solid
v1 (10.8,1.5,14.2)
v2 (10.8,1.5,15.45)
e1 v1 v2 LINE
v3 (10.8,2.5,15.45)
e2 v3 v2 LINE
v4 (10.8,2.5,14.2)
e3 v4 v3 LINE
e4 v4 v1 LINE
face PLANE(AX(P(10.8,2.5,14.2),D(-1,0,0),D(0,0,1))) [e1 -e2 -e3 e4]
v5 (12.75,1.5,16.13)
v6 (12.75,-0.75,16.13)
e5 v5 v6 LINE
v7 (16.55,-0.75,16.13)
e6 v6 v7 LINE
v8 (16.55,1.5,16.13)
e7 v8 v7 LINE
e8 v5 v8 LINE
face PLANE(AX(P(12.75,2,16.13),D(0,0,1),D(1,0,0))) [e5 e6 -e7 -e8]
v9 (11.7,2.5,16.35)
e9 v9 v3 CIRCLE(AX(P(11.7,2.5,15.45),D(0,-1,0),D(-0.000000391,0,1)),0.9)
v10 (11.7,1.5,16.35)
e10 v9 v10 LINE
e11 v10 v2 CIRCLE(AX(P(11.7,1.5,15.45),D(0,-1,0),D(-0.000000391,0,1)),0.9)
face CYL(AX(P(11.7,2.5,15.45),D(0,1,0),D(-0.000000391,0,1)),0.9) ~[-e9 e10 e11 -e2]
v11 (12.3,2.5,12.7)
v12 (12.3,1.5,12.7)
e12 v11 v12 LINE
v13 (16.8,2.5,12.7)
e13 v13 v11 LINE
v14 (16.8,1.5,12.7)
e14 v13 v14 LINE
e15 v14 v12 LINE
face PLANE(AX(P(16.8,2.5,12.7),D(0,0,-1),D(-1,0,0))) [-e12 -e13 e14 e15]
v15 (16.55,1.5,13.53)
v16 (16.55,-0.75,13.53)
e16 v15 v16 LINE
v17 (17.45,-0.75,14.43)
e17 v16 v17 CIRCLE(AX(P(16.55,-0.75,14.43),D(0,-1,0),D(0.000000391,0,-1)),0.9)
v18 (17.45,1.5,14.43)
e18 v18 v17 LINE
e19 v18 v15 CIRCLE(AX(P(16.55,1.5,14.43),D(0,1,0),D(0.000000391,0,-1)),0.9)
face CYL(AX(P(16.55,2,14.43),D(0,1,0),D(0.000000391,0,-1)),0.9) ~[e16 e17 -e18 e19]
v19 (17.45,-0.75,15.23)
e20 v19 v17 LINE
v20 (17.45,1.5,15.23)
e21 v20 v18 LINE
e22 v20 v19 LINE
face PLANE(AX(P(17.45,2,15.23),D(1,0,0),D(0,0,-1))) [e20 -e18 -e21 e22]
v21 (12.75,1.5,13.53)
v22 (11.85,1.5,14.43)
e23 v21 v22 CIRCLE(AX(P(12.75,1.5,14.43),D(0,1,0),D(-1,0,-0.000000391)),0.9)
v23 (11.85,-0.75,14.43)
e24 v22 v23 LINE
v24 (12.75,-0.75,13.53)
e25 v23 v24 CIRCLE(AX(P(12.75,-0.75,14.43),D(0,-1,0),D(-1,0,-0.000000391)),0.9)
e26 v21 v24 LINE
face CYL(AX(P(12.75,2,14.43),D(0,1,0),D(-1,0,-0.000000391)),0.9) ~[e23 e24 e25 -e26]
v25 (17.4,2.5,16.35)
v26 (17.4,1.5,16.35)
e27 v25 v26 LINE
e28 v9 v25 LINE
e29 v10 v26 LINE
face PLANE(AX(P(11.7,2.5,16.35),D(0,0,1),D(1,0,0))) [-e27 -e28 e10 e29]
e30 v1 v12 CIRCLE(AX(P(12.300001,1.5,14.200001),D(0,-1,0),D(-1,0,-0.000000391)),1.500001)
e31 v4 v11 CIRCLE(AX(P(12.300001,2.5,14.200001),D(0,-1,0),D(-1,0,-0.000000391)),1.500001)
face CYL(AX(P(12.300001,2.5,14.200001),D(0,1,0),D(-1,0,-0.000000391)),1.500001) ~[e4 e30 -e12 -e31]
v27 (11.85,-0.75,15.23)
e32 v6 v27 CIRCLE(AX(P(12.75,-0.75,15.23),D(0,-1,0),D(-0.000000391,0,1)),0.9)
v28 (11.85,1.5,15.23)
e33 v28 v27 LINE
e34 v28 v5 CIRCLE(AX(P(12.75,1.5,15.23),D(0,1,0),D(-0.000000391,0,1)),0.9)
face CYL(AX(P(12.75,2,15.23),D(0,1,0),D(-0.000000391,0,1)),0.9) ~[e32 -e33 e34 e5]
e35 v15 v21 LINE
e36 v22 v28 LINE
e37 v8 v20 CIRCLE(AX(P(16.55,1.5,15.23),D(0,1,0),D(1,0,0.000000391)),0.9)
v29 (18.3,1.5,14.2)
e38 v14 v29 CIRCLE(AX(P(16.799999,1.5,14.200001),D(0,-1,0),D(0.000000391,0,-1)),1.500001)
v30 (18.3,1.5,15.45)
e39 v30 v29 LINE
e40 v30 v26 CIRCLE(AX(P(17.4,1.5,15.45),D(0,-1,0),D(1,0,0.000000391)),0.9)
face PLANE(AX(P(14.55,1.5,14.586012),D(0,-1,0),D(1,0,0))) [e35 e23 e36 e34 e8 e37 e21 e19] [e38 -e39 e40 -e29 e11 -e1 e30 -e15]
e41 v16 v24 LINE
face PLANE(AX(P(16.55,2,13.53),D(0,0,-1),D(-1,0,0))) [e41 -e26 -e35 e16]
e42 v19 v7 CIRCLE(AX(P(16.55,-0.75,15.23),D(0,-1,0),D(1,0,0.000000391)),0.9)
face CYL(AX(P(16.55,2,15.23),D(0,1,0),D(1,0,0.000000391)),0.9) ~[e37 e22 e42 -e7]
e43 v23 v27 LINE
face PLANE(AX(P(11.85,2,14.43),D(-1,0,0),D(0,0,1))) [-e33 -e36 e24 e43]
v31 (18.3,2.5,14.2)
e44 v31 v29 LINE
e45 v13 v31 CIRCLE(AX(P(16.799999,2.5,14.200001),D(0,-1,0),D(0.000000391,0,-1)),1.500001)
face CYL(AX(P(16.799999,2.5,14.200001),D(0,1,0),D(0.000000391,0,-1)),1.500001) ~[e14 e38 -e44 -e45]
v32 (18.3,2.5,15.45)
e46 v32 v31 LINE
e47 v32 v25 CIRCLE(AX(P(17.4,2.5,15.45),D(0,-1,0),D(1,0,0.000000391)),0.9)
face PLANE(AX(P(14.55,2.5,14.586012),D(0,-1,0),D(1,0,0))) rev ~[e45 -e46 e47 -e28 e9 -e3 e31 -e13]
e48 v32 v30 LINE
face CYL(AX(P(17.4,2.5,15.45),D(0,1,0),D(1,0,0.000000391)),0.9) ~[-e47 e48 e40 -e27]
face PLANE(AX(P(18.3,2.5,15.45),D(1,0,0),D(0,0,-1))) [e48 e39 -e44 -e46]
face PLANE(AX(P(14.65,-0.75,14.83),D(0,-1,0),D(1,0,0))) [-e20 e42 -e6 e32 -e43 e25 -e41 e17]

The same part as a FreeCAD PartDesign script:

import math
import FreeCAD as App
import Part
import Sketcher

V = App.Vector

doc = App.newDocument("Part")
body = doc.addObject("PartDesign::Body", "Body")

sketch1 = body.newObject("Sketcher::SketchObject", "Sketch")
sketch1.AttachmentSupport = (doc.getObject("XZ_Plane"), [""])
sketch1.MapMode = "FlatFace"
sketch1.addGeometry([
    Part.ArcOfCircle(Part.Circle(V(11.7, 15.4, 0), V(0, 0, 1), 0.9), math.radians(90), math.radians(180)),
    Part.LineSegment(V(10.8, 15.4, 0), V(10.8, 14.2, 0)),
    Part.ArcOfCircle(Part.Circle(V(12.3, 14.2, 0), V(0, 0, 1), 1.5), math.radians(-180), math.radians(-90)),
    Part.LineSegment(V(12.3, 12.7, 0), V(16.8, 12.7, 0)),
    Part.ArcOfCircle(Part.Circle(V(16.8, 14.2, 0), V(0, 0, 1), 1.5), math.radians(-90), math.radians(0)),
    Part.LineSegment(V(18.3, 14.2, 0), V(18.3, 15.4, 0)),
    Part.ArcOfCircle(Part.Circle(V(17.4, 15.4, 0), V(0, 0, 1), 0.9), math.radians(0), math.radians(90)),
    Part.LineSegment(V(17.4, 16.4, 0), V(11.7, 16.4, 0)),
], False)
sketch1.addConstraint([
    Sketcher.Constraint("Tangent", 0, 2, 1, 1),
    Sketcher.Constraint("Tangent", 1, 2, 2, 1),
    Sketcher.Constraint("Tangent", 2, 2, 3, 1),
    Sketcher.Constraint("Tangent", 3, 2, 4, 1),
    Sketcher.Constraint("Tangent", 4, 2, 5, 1),
    Sketcher.Constraint("Tangent", 5, 2, 6, 1),
    Sketcher.Constraint("Tangent", 6, 2, 7, 1),
    Sketcher.Constraint("Tangent", 7, 2, 0, 1),
    Sketcher.Constraint("Vertical", 1),
    Sketcher.Constraint("Horizontal", 3),
    Sketcher.Constraint("Vertical", 5),
    Sketcher.Constraint("Horizontal", 7),
    Sketcher.Constraint("Equal", 2, 4),
    Sketcher.Constraint("Equal", 0, 6),
    Sketcher.Constraint("Radius", 0, 0.9),
    Sketcher.Constraint("Radius", 2, 1.500001),
    Sketcher.Constraint("DistanceX", 3, 1, 3, 2, 4.5),
    Sketcher.Constraint("DistanceY", 1, 2, 1, 1, 1.25),
    Sketcher.Constraint("DistanceX", -1, 1, 0, 3, 11.7),
    Sketcher.Constraint("DistanceY", -1, 1, 2, 3, 14.200001),
])
pad1 = body.newObject("PartDesign::Pad", "Pad")
pad1.Profile = sketch1
pad1.Length = 1
body2 = doc.addObject("PartDesign::Body", "Body001")
doc.recompute()

body.Placement = App.Placement(V(0, 2.5, 0), App.Rotation(V(0, 0, 1), 0))
boolean = body2.newObject("PartDesign::Boolean", "Boolean")
boolean.Type = "Fuse"
boolean.addObjects([body])
body3 = doc.addObject("PartDesign::Body", "Body002")

sketch2 = body3.newObject("Sketcher::SketchObject", "Sketch001")
sketch2.AttachmentSupport = (doc.getObject("XZ_Plane002"), [""])
sketch2.MapMode = "FlatFace"
sketch2.addGeometry([
    Part.ArcOfCircle(Part.Circle(V(12.8, 15.2, 0), V(0, 0, 1), 0.9), math.radians(90), math.radians(180)),
    Part.LineSegment(V(11.8, 15.2, 0), V(11.8, 14.4, 0)),
    Part.ArcOfCircle(Part.Circle(V(12.8, 14.4, 0), V(0, 0, 1), 0.9), math.radians(-180), math.radians(-90)),
    Part.LineSegment(V(12.8, 13.5, 0), V(16.6, 13.5, 0)),
    Part.ArcOfCircle(Part.Circle(V(16.5, 14.4, 0), V(0, 0, 1), 0.9), math.radians(-90), math.radians(0)),
    Part.LineSegment(V(17.4, 14.4, 0), V(17.4, 15.2, 0)),
    Part.ArcOfCircle(Part.Circle(V(16.5, 15.2, 0), V(0, 0, 1), 0.9), math.radians(0), math.radians(90)),
    Part.LineSegment(V(16.6, 16.1, 0), V(12.8, 16.1, 0)),
], False)
sketch2.addConstraint([
    Sketcher.Constraint("Tangent", 0, 2, 1, 1),
    Sketcher.Constraint("Tangent", 1, 2, 2, 1),
    Sketcher.Constraint("Tangent", 2, 2, 3, 1),
    Sketcher.Constraint("Tangent", 3, 2, 4, 1),
    Sketcher.Constraint("Tangent", 4, 2, 5, 1),
    Sketcher.Constraint("Tangent", 5, 2, 6, 1),
    Sketcher.Constraint("Tangent", 6, 2, 7, 1),
    Sketcher.Constraint("Tangent", 7, 2, 0, 1),
    Sketcher.Constraint("Vertical", 1),
    Sketcher.Constraint("Horizontal", 3),
    Sketcher.Constraint("Vertical", 5),
    Sketcher.Constraint("Horizontal", 7),
    Sketcher.Constraint("Equal", 0, 2),
    Sketcher.Constraint("Equal", 2, 4),
    Sketcher.Constraint("Equal", 4, 6),
    Sketcher.Constraint("Radius", 0, 0.9),
    Sketcher.Constraint("DistanceX", 3, 1, 3, 2, 3.8),
    Sketcher.Constraint("DistanceY", 1, 2, 1, 1, 0.8),
    Sketcher.Constraint("DistanceX", -1, 1, 0, 3, 12.75),
    Sketcher.Constraint("DistanceY", -1, 1, 0, 3, 15.23),
])
pad2 = body3.newObject("PartDesign::Pad", "Pad001")
pad2.Profile = sketch2
pad2.Length = 2.75
body4 = doc.addObject("PartDesign::Body", "Body003")
doc.recompute()

body3.Placement = App.Placement(V(0, 2, 0), App.Rotation(V(0, 0, 1), 0))
boolean2 = body4.newObject("PartDesign::Boolean", "Boolean001")
boolean2.Type = "Fuse"
boolean2.addObjects([body3])
doc.recompute()

boolean3 = body4.newObject("PartDesign::Boolean", "Boolean002")
boolean3.Type = "Fuse"
boolean3.addObjects([body2])

doc.recompute()
